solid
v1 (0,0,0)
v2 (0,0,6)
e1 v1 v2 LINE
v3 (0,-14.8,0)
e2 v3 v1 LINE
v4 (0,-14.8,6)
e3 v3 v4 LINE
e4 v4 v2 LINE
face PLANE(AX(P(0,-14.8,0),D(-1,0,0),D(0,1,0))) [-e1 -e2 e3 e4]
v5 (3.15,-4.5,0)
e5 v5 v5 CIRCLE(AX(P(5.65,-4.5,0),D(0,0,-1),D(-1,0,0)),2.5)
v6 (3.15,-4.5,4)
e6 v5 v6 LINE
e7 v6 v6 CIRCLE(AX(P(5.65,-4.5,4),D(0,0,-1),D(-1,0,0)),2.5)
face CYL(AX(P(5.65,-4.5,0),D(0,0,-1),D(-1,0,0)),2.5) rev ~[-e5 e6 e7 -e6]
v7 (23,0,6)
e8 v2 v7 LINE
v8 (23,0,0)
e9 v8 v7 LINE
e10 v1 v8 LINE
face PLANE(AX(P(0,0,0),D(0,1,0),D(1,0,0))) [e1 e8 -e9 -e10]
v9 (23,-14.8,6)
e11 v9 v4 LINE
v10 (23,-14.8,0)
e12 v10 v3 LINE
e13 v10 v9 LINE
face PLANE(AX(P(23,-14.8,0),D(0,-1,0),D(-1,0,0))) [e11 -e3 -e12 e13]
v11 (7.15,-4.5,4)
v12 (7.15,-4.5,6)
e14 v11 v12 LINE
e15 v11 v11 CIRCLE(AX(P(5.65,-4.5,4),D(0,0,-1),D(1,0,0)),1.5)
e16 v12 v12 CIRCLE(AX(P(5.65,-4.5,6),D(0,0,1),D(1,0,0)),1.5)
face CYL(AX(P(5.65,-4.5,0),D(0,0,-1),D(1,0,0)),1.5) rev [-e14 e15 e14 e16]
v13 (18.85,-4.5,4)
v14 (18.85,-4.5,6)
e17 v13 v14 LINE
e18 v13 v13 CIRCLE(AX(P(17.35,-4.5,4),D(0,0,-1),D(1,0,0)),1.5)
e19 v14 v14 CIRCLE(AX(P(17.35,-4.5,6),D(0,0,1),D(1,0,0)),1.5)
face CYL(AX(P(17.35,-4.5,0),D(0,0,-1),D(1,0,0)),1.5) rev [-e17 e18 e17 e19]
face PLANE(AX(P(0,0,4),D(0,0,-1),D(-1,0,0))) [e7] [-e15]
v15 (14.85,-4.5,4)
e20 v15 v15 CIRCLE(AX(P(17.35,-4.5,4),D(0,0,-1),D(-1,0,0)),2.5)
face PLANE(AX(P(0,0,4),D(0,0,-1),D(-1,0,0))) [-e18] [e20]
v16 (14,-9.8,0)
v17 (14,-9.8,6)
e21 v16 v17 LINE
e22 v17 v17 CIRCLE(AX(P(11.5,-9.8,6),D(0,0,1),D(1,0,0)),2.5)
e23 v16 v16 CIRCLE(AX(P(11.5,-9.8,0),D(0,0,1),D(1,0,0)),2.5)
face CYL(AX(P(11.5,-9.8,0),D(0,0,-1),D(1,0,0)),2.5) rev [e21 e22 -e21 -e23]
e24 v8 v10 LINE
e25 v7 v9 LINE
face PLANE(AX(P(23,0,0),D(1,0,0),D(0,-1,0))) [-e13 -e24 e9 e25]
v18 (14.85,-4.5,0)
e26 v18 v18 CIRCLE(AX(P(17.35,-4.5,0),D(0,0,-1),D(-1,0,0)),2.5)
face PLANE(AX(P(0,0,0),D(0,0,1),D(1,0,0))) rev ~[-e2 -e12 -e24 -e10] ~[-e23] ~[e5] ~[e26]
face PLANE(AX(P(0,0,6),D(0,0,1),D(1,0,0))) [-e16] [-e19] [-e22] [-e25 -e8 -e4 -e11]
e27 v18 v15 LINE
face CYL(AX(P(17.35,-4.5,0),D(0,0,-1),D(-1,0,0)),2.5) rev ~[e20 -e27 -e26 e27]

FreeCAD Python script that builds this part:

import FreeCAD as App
import Part
import Sketcher

V = App.Vector
Q = App.Units.Quantity


def add_polygon(sketch, points):
    """Adds a closed chain of lines whose ends are joined by coincident constraints."""
    first, n = sketch.GeometryCount, len(points)
    for a, b in zip(points, points[1:] + points[:1]):
        sketch.addGeometry(Part.LineSegment(App.Vector(*a, 0), App.Vector(*b, 0)), False)
    for i in range(n):
        sketch.addConstraint(Sketcher.Constraint("Coincident", first + i, 2, first + (i + 1) % n, 1))

doc = App.newDocument("Part")
body = doc.addObject("PartDesign::Body", "Body")

sketch1 = body.newObject("Sketcher::SketchObject", "Sketch")
sketch1.AttachmentSupport = (doc.getObject("XY_Plane"), [""])
sketch1.MapMode = "FlatFace"
add_polygon(sketch1, [(23, 0), (0, 0), (0, -14.8), (23, -14.8)])
sketch1.addGeometry(Part.Circle(V(11.5, -9.8, 0), V(0, 0, 1), 2.5), False)
sketch1.addGeometry(Part.Circle(V(5.7, -4.5, 0), V(0, 0, 1), 1.5), False)
sketch1.addGeometry(Part.Circle(V(17.4, -4.5, 0), V(0, 0, 1), 1.5), False)
sketch1.addConstraint(Sketcher.Constraint("Horizontal", 0))
sketch1.addConstraint(Sketcher.Constraint("Vertical", 1))
sketch1.addConstraint(Sketcher.Constraint("Horizontal", 2))
sketch1.addConstraint(Sketcher.Constraint("Vertical", 3))
sketch1.addConstraint(Sketcher.Constraint("Coincident", 0, 2, -1, 1))
sketch1.addConstraint(Sketcher.Constraint("Equal", 5, 6))
sketch1.addConstraint(Sketcher.Constraint("Horizontal", 5, 3, 6, 3))
sketch1.addConstraint(Sketcher.Constraint("Diameter", 4, Q("5 mm")))
sketch1.addConstraint(Sketcher.Constraint("Diameter", 5, Q("3 mm")))
sketch1.addConstraint(Sketcher.Constraint("DistanceX", 0, 2, 0, 1, Q("23 mm")))
sketch1.addConstraint(Sketcher.Constraint("DistanceY", 1, 2, 1, 1, Q("14.8 mm")))
sketch1.addConstraint(Sketcher.Constraint("DistanceY", 1, 2, 4, 3, Q("5 mm")))
sketch1.addConstraint(Sketcher.Constraint("DistanceX", -1, 1, 4, 3, Q("11.5 mm")))
sketch1.addConstraint(Sketcher.Constraint("DistanceY", 5, 3, -1, 1, Q("4.5 mm")))
sketch1.addConstraint(Sketcher.Constraint("DistanceX", 5, 3, 6, 3, Q("11.7 mm")))
sketch1.addConstraint(Sketcher.Constraint("DistanceX", -1, 1, 5, 3, Q("5.65 mm")))
pad1 = body.newObject("PartDesign::Pad", "Pad")
pad1.Profile = sketch1
pad1.Length = 6

sketch2 = body.newObject("Sketcher::SketchObject", "Sketch001")
sketch2.AttachmentSupport = (doc.getObject("XY_Plane"), [""])
sketch2.MapMode = "FlatFace"
sketch2.addGeometry(Part.Circle(V(17.4, -4.5, 0), V(0, 0, 1), 2.5), False)
sketch2.addGeometry(Part.Circle(V(17.4, -4.5, 0), V(0, 0, 1), 1.5), False)
sketch2.addGeometry(Part.Circle(V(5.7, -4.5, 0), V(0, 0, 1), 2.5), False)
sketch2.addGeometry(Part.Circle(V(5.7, -4.5, 0), V(0, 0, 1), 1.5), False)
sketch2.addConstraint(Sketcher.Constraint("Coincident", 1, 3, 0, 3))
sketch2.addConstraint(Sketcher.Constraint("Coincident", 3, 3, 2, 3))
sketch2.addConstraint(Sketcher.Constraint("Equal", 0, 2))
sketch2.addConstraint(Sketcher.Constraint("Equal", 1, 3))
sketch2.addConstraint(Sketcher.Constraint("Horizontal", 1, 3, 2, 3))
sketch2.addConstraint(Sketcher.Constraint("Diameter", 0, Q("5 mm")))
sketch2.addConstraint(Sketcher.Constraint("Diameter", 1, Q("3 mm")))
sketch2.addConstraint(Sketcher.Constraint("DistanceY", 0, 3, -1, 1, Q("4.5 mm")))
sketch2.addConstraint(Sketcher.Constraint("DistanceX", 2, 3, 0, 3, Q("11.7 mm")))
sketch2.addConstraint(Sketcher.Constraint("DistanceX", -1, 1, 0, 3, Q("17.35 mm")))
pocket1 = body.newObject("PartDesign::Pocket", "Pocket")
pocket1.Profile = sketch2
pocket1.Length = 4
pocket1.Reversed = True

doc.recompute()
